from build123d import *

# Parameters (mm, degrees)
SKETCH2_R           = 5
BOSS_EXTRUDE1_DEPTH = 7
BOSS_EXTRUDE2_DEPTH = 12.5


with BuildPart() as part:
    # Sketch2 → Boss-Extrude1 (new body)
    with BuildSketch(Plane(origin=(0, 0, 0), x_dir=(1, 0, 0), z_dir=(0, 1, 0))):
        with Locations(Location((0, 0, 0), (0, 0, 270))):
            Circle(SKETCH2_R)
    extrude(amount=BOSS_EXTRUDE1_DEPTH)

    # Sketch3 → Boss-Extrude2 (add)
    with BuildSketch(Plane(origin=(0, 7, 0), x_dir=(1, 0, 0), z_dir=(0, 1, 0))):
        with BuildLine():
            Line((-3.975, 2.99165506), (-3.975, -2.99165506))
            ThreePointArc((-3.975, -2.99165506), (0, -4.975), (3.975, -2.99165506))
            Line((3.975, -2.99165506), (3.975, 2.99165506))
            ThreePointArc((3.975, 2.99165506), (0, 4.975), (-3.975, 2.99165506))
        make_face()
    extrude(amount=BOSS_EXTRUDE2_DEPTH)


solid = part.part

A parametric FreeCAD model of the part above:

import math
import FreeCAD as App
import Part
import Sketcher

doc = App.newDocument("Part")
body = doc.addObject("PartDesign::Body", "Body")

# Sketch on XZ plane
sketch1 = doc.addObject("Sketcher::SketchObject", "Sketch")
body.addObject(sketch1)
sketch1.AttachmentSupport = (doc.XZ_Plane, [""])
sketch1.MapMode = "FlatFace"
sketch1.addGeometry(Part.Circle(App.Vector(0, 0, 0), App.Vector(0, 0, 1), 5), False)
sketch1.addConstraint(Sketcher.Constraint("Coincident", 0, 3, -1, 1))
sketch1.addConstraint(Sketcher.Constraint("Diameter", 0, 10.0))
pad1 = doc.addObject("PartDesign::Pad", "Pad")
body.addObject(pad1)
pad1.Profile = sketch1
pad1.Length = 7
pad1.Reversed = True

# Sketch on XZ plane
sketch2 = doc.addObject("Sketcher::SketchObject", "Sketch001")
body.addObject(sketch2)
sketch2.AttachmentSupport = (doc.XZ_Plane, [""])
sketch2.MapMode = "FlatFace"
sketch2.AttachmentOffset = App.Placement(App.Vector(0, 0, -7), App.Rotation())
sketch2.addGeometry(Part.LineSegment(App.Vector(-4, -3, 0), App.Vector(-4, 3, 0)), False)
sketch2.addGeometry(Part.ArcOfCircle(Part.Circle(App.Vector(0, 0, 0), App.Vector(0, 0, 1), 5), math.radians(37), math.radians(143)), False)
sketch2.addGeometry(Part.LineSegment(App.Vector(4, 3, 0), App.Vector(4, -3, 0)), False)
sketch2.addGeometry(Part.ArcOfCircle(Part.Circle(App.Vector(0, 0, 0), App.Vector(0, 0, 1), 5), math.radians(-143), math.radians(-37)), False)
sketch2.addConstraint(Sketcher.Constraint("Coincident", 0, 2, 1, 2))
sketch2.addConstraint(Sketcher.Constraint("Coincident", 1, 1, 2, 1))
sketch2.addConstraint(Sketcher.Constraint("Coincident", 2, 2, 3, 2))
sketch2.addConstraint(Sketcher.Constraint("Coincident", 3, 1, 0, 1))
sketch2.addConstraint(Sketcher.Constraint("Vertical", 0))
sketch2.addConstraint(Sketcher.Constraint("Vertical", 2))
sketch2.addConstraint(Sketcher.Constraint("Coincident", 1, 3, -1, 1))
sketch2.addConstraint(Sketcher.Constraint("Coincident", 3, 3, -1, 1))
sketch2.addConstraint(Sketcher.Constraint("Equal", 1, 3))
sketch2.addConstraint(Sketcher.Constraint("Horizontal", 0, 2, 1, 1))
sketch2.addConstraint(Sketcher.Constraint("Radius", 1, 4.975))
sketch2.addConstraint(Sketcher.Constraint("DistanceX", 0, 2, 1, 1, 7.95))
pad2 = doc.addObject("PartDesign::Pad", "Pad001")
body.addObject(pad2)
pad2.Profile = sketch2
pad2.Length = 12.5
pad2.Reversed = True

doc.recompute()
